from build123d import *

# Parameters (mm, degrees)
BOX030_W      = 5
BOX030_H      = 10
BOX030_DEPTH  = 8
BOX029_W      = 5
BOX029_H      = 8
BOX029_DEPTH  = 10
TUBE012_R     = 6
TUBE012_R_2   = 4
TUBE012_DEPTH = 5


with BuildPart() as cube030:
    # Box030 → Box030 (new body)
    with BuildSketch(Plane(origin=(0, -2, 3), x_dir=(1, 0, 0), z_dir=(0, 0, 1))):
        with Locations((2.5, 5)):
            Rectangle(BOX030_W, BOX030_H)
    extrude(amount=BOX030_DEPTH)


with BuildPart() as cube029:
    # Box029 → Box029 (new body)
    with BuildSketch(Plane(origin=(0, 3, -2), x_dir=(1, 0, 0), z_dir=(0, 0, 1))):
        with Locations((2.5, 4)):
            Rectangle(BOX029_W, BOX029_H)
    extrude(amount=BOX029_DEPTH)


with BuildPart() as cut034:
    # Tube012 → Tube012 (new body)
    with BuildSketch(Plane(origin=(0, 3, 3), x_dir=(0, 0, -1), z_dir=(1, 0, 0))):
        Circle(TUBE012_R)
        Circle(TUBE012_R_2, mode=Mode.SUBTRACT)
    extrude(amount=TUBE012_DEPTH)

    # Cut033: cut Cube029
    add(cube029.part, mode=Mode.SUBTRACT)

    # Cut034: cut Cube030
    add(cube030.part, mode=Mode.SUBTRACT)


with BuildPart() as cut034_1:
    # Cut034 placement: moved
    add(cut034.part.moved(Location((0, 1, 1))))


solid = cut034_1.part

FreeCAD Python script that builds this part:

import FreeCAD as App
import Part
import Sketcher


def add_polygon(sketch, points):
    """Adds a closed chain of lines whose ends are joined by coincident constraints."""
    first, n = sketch.GeometryCount, len(points)
    for a, b in zip(points, points[1:] + points[:1]):
        sketch.addGeometry(Part.LineSegment(App.Vector(*a, 0), App.Vector(*b, 0)), False)
    for i in range(n):
        sketch.addConstraint(Sketcher.Constraint("Coincident", first + i, 2, first + (i + 1) % n, 1))

doc = App.newDocument("Part")
body = doc.addObject("PartDesign::Body", "Body")

# Sketch on XY plane
sketch1 = body.newObject("Sketcher::SketchObject", "Sketch")
sketch1.AttachmentSupport = (doc.getObject("XY_Plane"), [""])
sketch1.MapMode = "FlatFace"
sketch1.AttachmentOffset = App.Placement(App.Vector(0, 0, 3), App.Rotation())
add_polygon(sketch1, [(0, 8), (0, -2), (5, -2), (5, 8)])  # lines 0-3
sketch1.addConstraint([
    Sketcher.Constraint("Vertical", 0),
    Sketcher.Constraint("Horizontal", 1),
    Sketcher.Constraint("Vertical", 2),
    Sketcher.Constraint("Horizontal", 3),
    Sketcher.Constraint("PointOnObject", 0, 2, -2),
    Sketcher.Constraint("DistanceX", 1, 1, 1, 2, 5.0),
    Sketcher.Constraint("DistanceY", 0, 2, 0, 1, 10.0),
    Sketcher.Constraint("DistanceY", 0, 2, -1, 1, 2.0),
])
pad1 = body.newObject("PartDesign::Pad", "Pad")
pad1.Profile = sketch1
pad1.Length = 8
body2 = doc.addObject("PartDesign::Body", "Body001")

# Sketch on XY plane
sketch2 = body2.newObject("Sketcher::SketchObject", "Sketch001")
sketch2.AttachmentSupport = (doc.getObject("XY_Plane001"), [""])
sketch2.MapMode = "FlatFace"
sketch2.AttachmentOffset = App.Placement(App.Vector(0, 0, -2), App.Rotation())
add_polygon(sketch2, [(0, 11), (0, 3), (5, 3), (5, 11)])  # lines 0-3
sketch2.addConstraint([
    Sketcher.Constraint("Vertical", 0),
    Sketcher.Constraint("Horizontal", 1),
    Sketcher.Constraint("Vertical", 2),
    Sketcher.Constraint("Horizontal", 3),
    Sketcher.Constraint("PointOnObject", 0, 2, -2),
    Sketcher.Constraint("DistanceX", 1, 1, 1, 2, 5.0),
    Sketcher.Constraint("DistanceY", 0, 2, 0, 1, 8.0),
    Sketcher.Constraint("DistanceY", -1, 1, 0, 2, 3.0),
])
pad2 = body2.newObject("PartDesign::Pad", "Pad001")
pad2.Profile = sketch2
pad2.Length = 10
body3 = doc.addObject("PartDesign::Body", "Body002")

# Sketch on YZ plane
sketch3 = body3.newObject("Sketcher::SketchObject", "Sketch002")
sketch3.AttachmentSupport = (doc.getObject("YZ_Plane002"), [""])
sketch3.MapMode = "FlatFace"
sketch3.addGeometry([
    Part.Circle(App.Vector(3, 3, 0), App.Vector(0, 0, 1), 6),
    Part.Circle(App.Vector(3, 3, 0), App.Vector(0, 0, 1), 4),
], False)
sketch3.addConstraint([
    Sketcher.Constraint("Coincident", 1, 3, 0, 3),
    Sketcher.Constraint("Diameter", 0, 12.0),
    Sketcher.Constraint("Diameter", 1, 8.0),
    Sketcher.Constraint("DistanceX", -1, 1, 0, 3, 3.0),
    Sketcher.Constraint("DistanceY", -1, 1, 0, 3, 3.0),
])
pad3 = body3.newObject("PartDesign::Pad", "Pad002")
pad3.Profile = sketch3
pad3.Length = 5
doc.recompute()

boolean = body3.newObject("PartDesign::Boolean", "Boolean")
boolean.Type = "Cut"
boolean.addObjects([body2])
doc.recompute()

boolean2 = body3.newObject("PartDesign::Boolean", "Boolean001")
boolean2.Type = "Cut"
boolean2.addObjects([body])
body4 = doc.addObject("PartDesign::Body", "Body003")
doc.recompute()

body3.Placement = App.Placement(App.Vector(0, 1, 1), App.Rotation(App.Vector(0, 0, 1), 0))
boolean3 = body4.newObject("PartDesign::Boolean", "Boolean002")
boolean3.Type = "Fuse"
boolean3.addObjects([body3])

doc.recompute()
